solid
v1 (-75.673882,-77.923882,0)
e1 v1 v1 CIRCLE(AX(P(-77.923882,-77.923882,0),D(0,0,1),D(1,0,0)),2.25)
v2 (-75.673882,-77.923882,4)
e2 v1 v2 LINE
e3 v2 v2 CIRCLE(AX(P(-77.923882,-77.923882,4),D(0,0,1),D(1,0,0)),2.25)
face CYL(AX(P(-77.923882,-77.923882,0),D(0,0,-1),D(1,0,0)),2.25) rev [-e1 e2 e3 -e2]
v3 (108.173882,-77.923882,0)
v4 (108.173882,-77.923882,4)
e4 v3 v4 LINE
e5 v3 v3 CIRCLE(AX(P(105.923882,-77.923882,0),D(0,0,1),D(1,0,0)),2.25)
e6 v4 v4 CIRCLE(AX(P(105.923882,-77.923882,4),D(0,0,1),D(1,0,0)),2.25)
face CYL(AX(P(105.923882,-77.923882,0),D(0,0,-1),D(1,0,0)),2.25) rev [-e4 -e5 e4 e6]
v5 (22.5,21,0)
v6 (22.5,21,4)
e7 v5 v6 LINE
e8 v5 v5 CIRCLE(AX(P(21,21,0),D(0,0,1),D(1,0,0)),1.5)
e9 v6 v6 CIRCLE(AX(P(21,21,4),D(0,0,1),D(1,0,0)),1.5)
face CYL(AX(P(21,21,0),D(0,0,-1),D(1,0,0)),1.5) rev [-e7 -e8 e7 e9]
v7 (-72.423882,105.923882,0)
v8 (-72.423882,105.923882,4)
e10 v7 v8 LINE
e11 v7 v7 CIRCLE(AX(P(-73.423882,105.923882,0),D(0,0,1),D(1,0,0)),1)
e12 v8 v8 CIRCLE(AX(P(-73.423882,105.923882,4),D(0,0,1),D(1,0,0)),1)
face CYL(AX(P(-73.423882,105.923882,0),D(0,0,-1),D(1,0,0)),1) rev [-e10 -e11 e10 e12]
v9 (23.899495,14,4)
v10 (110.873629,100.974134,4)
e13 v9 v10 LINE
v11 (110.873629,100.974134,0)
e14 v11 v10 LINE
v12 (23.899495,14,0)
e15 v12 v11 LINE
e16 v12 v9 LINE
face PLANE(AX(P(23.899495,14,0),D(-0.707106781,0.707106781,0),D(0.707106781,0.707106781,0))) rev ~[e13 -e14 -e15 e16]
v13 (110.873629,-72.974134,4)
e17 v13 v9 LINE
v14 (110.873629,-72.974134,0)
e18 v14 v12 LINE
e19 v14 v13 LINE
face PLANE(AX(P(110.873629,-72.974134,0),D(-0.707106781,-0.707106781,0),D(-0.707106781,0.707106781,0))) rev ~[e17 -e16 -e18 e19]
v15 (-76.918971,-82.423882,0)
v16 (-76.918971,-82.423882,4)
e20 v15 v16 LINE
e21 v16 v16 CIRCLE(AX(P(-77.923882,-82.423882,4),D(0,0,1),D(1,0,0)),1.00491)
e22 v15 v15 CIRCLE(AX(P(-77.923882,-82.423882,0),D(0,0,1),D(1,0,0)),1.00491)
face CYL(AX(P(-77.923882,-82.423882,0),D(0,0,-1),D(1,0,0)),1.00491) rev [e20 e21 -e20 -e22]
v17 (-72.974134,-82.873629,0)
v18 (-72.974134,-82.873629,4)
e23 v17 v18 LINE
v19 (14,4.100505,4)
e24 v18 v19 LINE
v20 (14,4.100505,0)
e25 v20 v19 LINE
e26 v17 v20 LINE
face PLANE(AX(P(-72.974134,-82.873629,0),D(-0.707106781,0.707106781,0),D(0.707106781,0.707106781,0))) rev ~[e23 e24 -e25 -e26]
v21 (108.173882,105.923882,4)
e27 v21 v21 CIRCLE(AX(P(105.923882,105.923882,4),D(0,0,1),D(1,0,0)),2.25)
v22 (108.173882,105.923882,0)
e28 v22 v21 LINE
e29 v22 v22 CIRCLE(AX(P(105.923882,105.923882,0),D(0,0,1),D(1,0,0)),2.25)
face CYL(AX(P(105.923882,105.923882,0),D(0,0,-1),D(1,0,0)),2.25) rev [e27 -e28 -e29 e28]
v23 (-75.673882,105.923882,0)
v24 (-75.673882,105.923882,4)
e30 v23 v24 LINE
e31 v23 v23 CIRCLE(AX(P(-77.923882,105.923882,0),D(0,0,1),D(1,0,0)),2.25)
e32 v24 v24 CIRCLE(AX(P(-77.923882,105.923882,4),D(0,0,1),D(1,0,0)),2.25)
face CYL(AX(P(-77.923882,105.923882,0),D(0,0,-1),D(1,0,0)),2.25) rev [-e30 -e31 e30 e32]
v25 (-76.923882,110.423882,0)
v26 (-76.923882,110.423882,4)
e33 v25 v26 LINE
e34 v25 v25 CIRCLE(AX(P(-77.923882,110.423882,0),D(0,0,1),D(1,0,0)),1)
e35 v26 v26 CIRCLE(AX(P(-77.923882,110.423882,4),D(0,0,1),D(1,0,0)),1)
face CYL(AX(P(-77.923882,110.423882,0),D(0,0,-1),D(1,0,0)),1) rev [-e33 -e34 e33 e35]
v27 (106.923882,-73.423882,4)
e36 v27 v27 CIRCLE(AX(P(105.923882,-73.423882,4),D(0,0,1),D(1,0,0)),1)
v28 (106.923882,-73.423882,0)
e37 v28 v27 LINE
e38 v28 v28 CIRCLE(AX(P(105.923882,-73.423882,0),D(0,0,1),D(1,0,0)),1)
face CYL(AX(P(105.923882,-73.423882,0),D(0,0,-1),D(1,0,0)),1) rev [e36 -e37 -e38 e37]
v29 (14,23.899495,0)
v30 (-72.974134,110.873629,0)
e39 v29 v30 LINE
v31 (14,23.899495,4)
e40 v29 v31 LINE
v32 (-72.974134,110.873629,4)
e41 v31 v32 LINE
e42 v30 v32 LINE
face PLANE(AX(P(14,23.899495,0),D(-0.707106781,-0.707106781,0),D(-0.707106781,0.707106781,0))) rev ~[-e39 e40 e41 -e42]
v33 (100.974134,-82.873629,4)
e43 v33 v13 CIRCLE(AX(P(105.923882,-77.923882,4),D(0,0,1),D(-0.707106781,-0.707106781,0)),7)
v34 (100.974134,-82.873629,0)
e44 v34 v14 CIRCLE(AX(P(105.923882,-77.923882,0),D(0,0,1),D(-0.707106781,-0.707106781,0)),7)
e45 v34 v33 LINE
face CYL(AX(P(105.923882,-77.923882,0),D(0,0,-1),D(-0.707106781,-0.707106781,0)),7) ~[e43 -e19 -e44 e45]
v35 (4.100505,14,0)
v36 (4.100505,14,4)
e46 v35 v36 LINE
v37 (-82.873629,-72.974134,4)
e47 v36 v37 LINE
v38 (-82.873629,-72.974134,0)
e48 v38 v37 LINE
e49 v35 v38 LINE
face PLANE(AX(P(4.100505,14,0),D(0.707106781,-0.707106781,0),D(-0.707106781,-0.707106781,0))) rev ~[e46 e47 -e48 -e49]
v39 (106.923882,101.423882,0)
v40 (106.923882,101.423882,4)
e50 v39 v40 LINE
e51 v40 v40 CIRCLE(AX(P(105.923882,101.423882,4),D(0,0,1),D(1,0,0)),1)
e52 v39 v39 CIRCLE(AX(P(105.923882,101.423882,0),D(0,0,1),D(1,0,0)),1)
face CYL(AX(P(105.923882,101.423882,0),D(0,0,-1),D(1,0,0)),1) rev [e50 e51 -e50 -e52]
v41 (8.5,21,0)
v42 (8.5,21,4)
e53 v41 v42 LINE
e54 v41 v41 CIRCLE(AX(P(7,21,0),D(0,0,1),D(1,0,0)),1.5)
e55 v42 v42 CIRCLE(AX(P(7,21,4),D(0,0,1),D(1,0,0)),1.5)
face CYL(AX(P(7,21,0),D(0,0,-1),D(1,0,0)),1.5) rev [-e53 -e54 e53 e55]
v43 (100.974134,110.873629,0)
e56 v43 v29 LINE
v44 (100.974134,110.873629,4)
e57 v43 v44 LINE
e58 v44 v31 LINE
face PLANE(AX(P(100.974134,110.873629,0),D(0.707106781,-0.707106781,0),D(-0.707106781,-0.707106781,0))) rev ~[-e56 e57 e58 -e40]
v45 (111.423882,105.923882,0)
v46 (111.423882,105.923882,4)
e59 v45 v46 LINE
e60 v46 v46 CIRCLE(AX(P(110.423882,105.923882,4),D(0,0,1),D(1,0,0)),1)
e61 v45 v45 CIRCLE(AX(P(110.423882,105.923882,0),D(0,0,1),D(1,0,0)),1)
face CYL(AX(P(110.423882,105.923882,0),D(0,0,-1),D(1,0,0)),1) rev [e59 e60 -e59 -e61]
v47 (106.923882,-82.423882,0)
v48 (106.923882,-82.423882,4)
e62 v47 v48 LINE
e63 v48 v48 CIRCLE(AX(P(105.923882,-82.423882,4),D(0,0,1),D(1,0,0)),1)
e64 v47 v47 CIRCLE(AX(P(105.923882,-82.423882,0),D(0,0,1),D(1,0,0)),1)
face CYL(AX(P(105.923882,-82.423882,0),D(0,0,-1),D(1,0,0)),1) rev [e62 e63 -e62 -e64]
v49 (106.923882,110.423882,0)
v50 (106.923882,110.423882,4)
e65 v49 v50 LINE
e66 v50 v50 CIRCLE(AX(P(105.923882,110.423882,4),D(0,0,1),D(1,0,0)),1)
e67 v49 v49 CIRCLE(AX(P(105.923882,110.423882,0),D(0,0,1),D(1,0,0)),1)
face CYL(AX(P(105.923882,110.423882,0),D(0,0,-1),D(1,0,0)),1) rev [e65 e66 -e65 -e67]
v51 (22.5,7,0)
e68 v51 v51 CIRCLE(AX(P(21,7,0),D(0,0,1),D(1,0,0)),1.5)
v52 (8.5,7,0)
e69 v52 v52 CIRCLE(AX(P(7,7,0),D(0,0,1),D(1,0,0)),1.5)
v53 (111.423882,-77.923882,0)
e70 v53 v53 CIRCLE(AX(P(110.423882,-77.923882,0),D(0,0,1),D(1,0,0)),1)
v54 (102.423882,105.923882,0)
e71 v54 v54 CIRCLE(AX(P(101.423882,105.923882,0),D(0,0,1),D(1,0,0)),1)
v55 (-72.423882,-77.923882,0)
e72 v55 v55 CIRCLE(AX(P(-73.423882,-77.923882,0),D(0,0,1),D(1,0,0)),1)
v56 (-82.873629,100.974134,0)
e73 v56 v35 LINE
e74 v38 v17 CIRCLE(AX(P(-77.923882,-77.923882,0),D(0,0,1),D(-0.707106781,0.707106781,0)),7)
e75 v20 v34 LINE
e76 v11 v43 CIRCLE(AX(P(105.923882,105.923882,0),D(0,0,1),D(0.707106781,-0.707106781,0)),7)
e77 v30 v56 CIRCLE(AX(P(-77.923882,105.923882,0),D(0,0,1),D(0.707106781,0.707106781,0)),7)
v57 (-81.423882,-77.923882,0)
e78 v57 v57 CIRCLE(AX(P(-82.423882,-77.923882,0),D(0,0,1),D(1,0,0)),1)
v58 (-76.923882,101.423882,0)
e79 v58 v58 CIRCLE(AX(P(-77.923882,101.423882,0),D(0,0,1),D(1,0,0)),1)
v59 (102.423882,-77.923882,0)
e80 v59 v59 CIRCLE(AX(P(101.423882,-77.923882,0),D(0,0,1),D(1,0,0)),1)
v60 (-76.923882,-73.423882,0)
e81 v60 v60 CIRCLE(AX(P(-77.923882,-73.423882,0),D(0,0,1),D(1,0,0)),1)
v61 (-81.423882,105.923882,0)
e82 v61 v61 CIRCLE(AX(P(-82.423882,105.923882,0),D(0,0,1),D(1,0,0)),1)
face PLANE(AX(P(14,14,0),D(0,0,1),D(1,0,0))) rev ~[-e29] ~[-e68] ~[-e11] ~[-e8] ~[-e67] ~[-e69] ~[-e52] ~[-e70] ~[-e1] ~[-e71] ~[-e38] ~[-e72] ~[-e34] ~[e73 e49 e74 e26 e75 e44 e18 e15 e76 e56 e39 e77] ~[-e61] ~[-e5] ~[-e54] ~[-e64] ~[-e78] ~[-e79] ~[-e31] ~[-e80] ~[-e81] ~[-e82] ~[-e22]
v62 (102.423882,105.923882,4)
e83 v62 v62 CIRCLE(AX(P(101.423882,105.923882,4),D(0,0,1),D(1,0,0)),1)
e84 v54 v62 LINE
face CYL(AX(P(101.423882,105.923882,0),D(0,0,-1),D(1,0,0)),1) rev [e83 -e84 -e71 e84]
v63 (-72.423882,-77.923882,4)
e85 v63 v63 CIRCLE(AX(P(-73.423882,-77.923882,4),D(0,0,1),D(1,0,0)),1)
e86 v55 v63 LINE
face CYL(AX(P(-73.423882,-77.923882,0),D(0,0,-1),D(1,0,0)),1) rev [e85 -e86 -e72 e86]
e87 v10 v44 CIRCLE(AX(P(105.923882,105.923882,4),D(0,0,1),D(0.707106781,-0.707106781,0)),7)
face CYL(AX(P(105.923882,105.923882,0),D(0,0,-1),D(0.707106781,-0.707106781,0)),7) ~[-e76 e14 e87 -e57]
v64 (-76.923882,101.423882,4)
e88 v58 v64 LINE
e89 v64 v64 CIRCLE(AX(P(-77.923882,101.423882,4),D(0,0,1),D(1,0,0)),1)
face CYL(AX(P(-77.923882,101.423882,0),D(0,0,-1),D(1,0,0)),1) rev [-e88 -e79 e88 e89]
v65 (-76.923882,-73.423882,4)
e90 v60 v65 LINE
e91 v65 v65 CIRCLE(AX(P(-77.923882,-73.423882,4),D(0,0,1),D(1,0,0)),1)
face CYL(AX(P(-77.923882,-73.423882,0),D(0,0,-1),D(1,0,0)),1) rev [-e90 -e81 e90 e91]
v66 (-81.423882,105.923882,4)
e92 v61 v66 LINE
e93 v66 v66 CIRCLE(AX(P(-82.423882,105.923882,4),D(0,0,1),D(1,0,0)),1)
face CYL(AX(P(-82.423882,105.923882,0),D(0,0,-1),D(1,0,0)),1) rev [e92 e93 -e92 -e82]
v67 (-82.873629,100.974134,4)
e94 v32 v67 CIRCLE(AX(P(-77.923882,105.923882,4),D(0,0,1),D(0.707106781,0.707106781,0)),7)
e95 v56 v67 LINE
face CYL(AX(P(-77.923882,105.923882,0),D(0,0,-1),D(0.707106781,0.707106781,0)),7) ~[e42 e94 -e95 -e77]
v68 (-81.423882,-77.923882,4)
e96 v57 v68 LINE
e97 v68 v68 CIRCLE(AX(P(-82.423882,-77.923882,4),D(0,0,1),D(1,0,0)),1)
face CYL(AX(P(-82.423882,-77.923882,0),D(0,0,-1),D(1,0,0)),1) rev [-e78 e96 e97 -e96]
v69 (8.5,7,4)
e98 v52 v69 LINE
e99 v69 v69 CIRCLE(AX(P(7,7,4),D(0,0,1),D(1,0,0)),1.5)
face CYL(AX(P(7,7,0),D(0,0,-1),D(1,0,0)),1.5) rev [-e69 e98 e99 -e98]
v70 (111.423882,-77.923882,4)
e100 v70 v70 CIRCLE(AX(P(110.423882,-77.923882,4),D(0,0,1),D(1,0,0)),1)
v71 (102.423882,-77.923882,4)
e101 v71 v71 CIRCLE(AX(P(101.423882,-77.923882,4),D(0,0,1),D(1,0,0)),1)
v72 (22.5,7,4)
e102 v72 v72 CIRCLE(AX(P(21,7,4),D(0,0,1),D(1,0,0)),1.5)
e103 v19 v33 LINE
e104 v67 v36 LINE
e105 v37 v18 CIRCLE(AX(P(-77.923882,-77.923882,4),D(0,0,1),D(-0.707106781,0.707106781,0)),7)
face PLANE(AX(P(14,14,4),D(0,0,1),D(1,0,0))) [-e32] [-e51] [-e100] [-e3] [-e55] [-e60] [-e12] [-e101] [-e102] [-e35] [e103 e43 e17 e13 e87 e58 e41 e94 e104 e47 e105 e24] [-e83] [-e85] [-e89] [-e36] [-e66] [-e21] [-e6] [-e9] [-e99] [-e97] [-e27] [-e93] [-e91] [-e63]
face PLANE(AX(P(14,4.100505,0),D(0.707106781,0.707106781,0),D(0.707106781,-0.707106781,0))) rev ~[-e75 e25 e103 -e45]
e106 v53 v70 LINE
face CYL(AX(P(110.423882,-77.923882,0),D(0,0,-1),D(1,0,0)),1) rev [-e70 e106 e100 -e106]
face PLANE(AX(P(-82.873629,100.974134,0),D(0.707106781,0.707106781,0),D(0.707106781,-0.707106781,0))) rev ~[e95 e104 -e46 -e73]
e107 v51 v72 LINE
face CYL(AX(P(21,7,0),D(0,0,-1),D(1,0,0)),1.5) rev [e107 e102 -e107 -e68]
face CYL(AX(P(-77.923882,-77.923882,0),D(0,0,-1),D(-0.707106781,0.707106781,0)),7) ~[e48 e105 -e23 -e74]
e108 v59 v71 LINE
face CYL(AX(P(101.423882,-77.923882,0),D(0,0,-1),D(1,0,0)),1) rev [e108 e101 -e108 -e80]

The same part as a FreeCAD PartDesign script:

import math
import FreeCAD as App
import Part
import Sketcher
Q = App.Units.Quantity

doc = App.newDocument("Part")
body = doc.addObject("PartDesign::Body", "Body")

# Sketch on XY plane
sketch1 = doc.addObject("Sketcher::SketchObject", "Sketch")
body.addObject(sketch1)
sketch1.AttachmentSupport = (doc.XY_Plane, [""])
sketch1.MapMode = "FlatFace"
sketch1.addGeometry(Part.LineSegment(App.Vector(-73, -82.9, 0), App.Vector(14, 4.1, 0)), False)
sketch1.addGeometry(Part.LineSegment(App.Vector(14, 4.1, 0), App.Vector(101, -82.9, 0)), False)
sketch1.addGeometry(Part.ArcOfCircle(Part.Circle(App.Vector(105.9, -77.9, 0), App.Vector(0, 0, 1), 7), math.radians(-135), math.radians(45)), False)
sketch1.addGeometry(Part.LineSegment(App.Vector(110.9, -73, 0), App.Vector(23.9, 14, 0)), False)
sketch1.addGeometry(Part.LineSegment(App.Vector(23.9, 14, 0), App.Vector(110.9, 101, 0)), False)
sketch1.addGeometry(Part.ArcOfCircle(Part.Circle(App.Vector(105.9, 105.9, 0), App.Vector(0, 0, 1), 7), math.radians(-45), math.radians(135)), False)
sketch1.addGeometry(Part.LineSegment(App.Vector(101, 110.9, 0), App.Vector(14, 23.9, 0)), False)
sketch1.addGeometry(Part.LineSegment(App.Vector(14, 23.9, 0), App.Vector(-73, 110.9, 0)), False)
sketch1.addGeometry(Part.ArcOfCircle(Part.Circle(App.Vector(-77.9, 105.9, 0), App.Vector(0, 0, 1), 7), math.radians(45), math.radians(225)), False)
sketch1.addGeometry(Part.LineSegment(App.Vector(-82.9, 101, 0), App.Vector(4.1, 14, 0)), False)
sketch1.addGeometry(Part.LineSegment(App.Vector(4.1, 14, 0), App.Vector(-82.9, -73, 0)), False)
sketch1.addGeometry(Part.ArcOfCircle(Part.Circle(App.Vector(-77.9, -77.9, 0), App.Vector(0, 0, 1), 7), math.radians(135), math.radians(315)), False)
sketch1.addGeometry(Part.Circle(App.Vector(-77.9, -82.4, 0), App.Vector(0, 0, 1), 1), False)
sketch1.addGeometry(Part.Circle(App.Vector(-82.4, -77.9, 0), App.Vector(0, 0, 1), 1), False)
sketch1.addGeometry(Part.Circle(App.Vector(-77.9, -77.9, 0), App.Vector(0, 0, 1), 2.2), False)
sketch1.addGeometry(Part.Circle(App.Vector(-73.4, -77.9, 0), App.Vector(0, 0, 1), 1), False)
sketch1.addGeometry(Part.Circle(App.Vector(-77.9, -73.4, 0), App.Vector(0, 0, 1), 1), False)
sketch1.addGeometry(Part.Circle(App.Vector(7, 7, 0), App.Vector(0, 0, 1), 1.5), False)
sketch1.addGeometry(Part.Circle(App.Vector(101.4, -77.9, 0), App.Vector(0, 0, 1), 1), False)
sketch1.addGeometry(Part.Circle(App.Vector(105.9, -82.4, 0), App.Vector(0, 0, 1), 1), False)
sketch1.addGeometry(Part.Circle(App.Vector(105.9, -77.9, 0), App.Vector(0, 0, 1), 2.2), False)
sketch1.addGeometry(Part.Circle(App.Vector(110.4, -77.9, 0), App.Vector(0, 0, 1), 1), False)
sketch1.addGeometry(Part.Circle(App.Vector(105.9, -73.4, 0), App.Vector(0, 0, 1), 1), False)
sketch1.addGeometry(Part.Circle(App.Vector(21, 7, 0), App.Vector(0, 0, 1), 1.5), False)
sketch1.addGeometry(Part.Circle(App.Vector(7, 21, 0), App.Vector(0, 0, 1), 1.5), False)
sketch1.addGeometry(Part.Circle(App.Vector(-77.9, 101.4, 0), App.Vector(0, 0, 1), 1), False)
sketch1.addGeometry(Part.Circle(App.Vector(-82.4, 105.9, 0), App.Vector(0, 0, 1), 1), False)
sketch1.addGeometry(Part.Circle(App.Vector(-77.9, 105.9, 0), App.Vector(0, 0, 1), 2.2), False)
sketch1.addGeometry(Part.Circle(App.Vector(-77.9, 110.4, 0), App.Vector(0, 0, 1), 1), False)
sketch1.addGeometry(Part.Circle(App.Vector(-73.4, 105.9, 0), App.Vector(0, 0, 1), 1), False)
sketch1.addGeometry(Part.Circle(App.Vector(21, 21, 0), App.Vector(0, 0, 1), 1.5), False)
sketch1.addGeometry(Part.Circle(App.Vector(105.9, 101.4, 0), App.Vector(0, 0, 1), 1), False)
sketch1.addGeometry(Part.Circle(App.Vector(101.4, 105.9, 0), App.Vector(0, 0, 1), 1), False)
sketch1.addGeometry(Part.Circle(App.Vector(105.9, 105.9, 0), App.Vector(0, 0, 1), 2.2), False)
sketch1.addGeometry(Part.Circle(App.Vector(110.4, 105.9, 0), App.Vector(0, 0, 1), 1), False)
sketch1.addGeometry(Part.Circle(App.Vector(105.9, 110.4, 0), App.Vector(0, 0, 1), 1), False)
sketch1.addConstraint(Sketcher.Constraint("Coincident", 0, 2, 1, 1))
sketch1.addConstraint(Sketcher.Constraint("Tangent", 1, 2, 2, 1))
sketch1.addConstraint(Sketcher.Constraint("Tangent", 2, 2, 3, 1))
sketch1.addConstraint(Sketcher.Constraint("Coincident", 3, 2, 4, 1))
sketch1.addConstraint(Sketcher.Constraint("Tangent", 4, 2, 5, 1))
sketch1.addConstraint(Sketcher.Constraint("Tangent", 5, 2, 6, 1))
sketch1.addConstraint(Sketcher.Constraint("Coincident", 6, 2, 7, 1))
sketch1.addConstraint(Sketcher.Constraint("Tangent", 7, 2, 8, 1))
sketch1.addConstraint(Sketcher.Constraint("Tangent", 8, 2, 9, 1))
sketch1.addConstraint(Sketcher.Constraint("Coincident", 9, 2, 10, 1))
sketch1.addConstraint(Sketcher.Constraint("Tangent", 10, 2, 11, 1))
sketch1.addConstraint(Sketcher.Constraint("Tangent", 11, 2, 0, 1))
sketch1.addConstraint(Sketcher.Constraint("Coincident", 14, 3, 11, 3))
sketch1.addConstraint(Sketcher.Constraint("Coincident", 20, 3, 2, 3))
sketch1.addConstraint(Sketcher.Constraint("Coincident", 27, 3, 8, 3))
sketch1.addConstraint(Sketcher.Constraint("Coincident", 33, 3, 5, 3))
sketch1.addConstraint(Sketcher.Constraint("Equal", 2, 5))
sketch1.addConstraint(Sketcher.Constraint("Equal", 5, 8))
sketch1.addConstraint(Sketcher.Constraint("Equal", 8, 11))
sketch1.addConstraint(Sketcher.Constraint("Equal", 13, 15))
sketch1.addConstraint(Sketcher.Constraint("Equal", 15, 16))
sketch1.addConstraint(Sketcher.Constraint("Equal", 16, 18))
sketch1.addConstraint(Sketcher.Constraint("Equal", 18, 19))
sketch1.addConstraint(Sketcher.Constraint("Equal", 14, 20))
sketch1.addConstraint(Sketcher.Constraint("Equal", 19, 21))
sketch1.addConstraint(Sketcher.Constraint("Equal", 21, 22))
sketch1.addConstraint(Sketcher.Constraint("Equal", 17, 23))
sketch1.addConstraint(Sketcher.Constraint("Equal", 23, 24))
sketch1.addConstraint(Sketcher.Constraint("Equal", 22, 25))
sketch1.addConstraint(Sketcher.Constraint("Equal", 25, 26))
sketch1.addConstraint(Sketcher.Constraint("Equal", 20, 27))
sketch1.addConstraint(Sketcher.Constraint("Equal", 26, 28))
sketch1.addConstraint(Sketcher.Constraint("Equal", 28, 29))
sketch1.addConstraint(Sketcher.Constraint("Equal", 24, 30))
sketch1.addConstraint(Sketcher.Constraint("Equal", 29, 31))
sketch1.addConstraint(Sketcher.Constraint("Equal", 31, 32))
sketch1.addConstraint(Sketcher.Constraint("Equal", 27, 33))
sketch1.addConstraint(Sketcher.Constraint("Equal", 32, 34))
sketch1.addConstraint(Sketcher.Constraint("Equal", 34, 35))
sketch1.addConstraint(Sketcher.Constraint("Perpendicular", 0, 1))
sketch1.addConstraint(Sketcher.Constraint("Parallel", 1, 3))
sketch1.addConstraint(Sketcher.Constraint("Perpendicular", 3, 4))
sketch1.addConstraint(Sketcher.Constraint("Parallel", 4, 6))
sketch1.addConstraint(Sketcher.Constraint("Perpendicular", 6, 7))
sketch1.addConstraint(Sketcher.Constraint("Parallel", 7, 9))
sketch1.addConstraint(Sketcher.Constraint("Perpendicular", 9, 10))
sketch1.addConstraint(Sketcher.Constraint("Horizontal", 5, 3, 8, 3))
sketch1.addConstraint(Sketcher.Constraint("Horizontal", 2, 3, 11, 3))
sketch1.addConstraint(Sketcher.Constraint("Horizontal", 11, 3, 13, 3))
sketch1.addConstraint(Sketcher.Constraint("Horizontal", 14, 3, 15, 3))
sketch1.addConstraint(Sketcher.Constraint("Horizontal", 15, 3, 18, 3))
sketch1.addConstraint(Sketcher.Constraint("Horizontal", 12, 3, 19, 3))
sketch1.addConstraint(Sketcher.Constraint("Horizontal", 20, 3, 21, 3))
sketch1.addConstraint(Sketcher.Constraint("Horizontal", 16, 3, 22, 3))
sketch1.addConstraint(Sketcher.Constraint("Horizontal", 17, 3, 23, 3))
sketch1.addConstraint(Sketcher.Constraint("Horizontal", 8, 3, 26, 3))
sketch1.addConstraint(Sketcher.Constraint("Horizontal", 27, 3, 29, 3))
sketch1.addConstraint(Sketcher.Constraint("Horizontal", 24, 3, 30, 3))
sketch1.addConstraint(Sketcher.Constraint("Horizontal", 25, 3, 31, 3))
sketch1.addConstraint(Sketcher.Constraint("Horizontal", 29, 3, 32, 3))
sketch1.addConstraint(Sketcher.Constraint("Horizontal", 33, 3, 34, 3))
sketch1.addConstraint(Sketcher.Constraint("Horizontal", 28, 3, 35, 3))
sketch1.addConstraint(Sketcher.Constraint("Horizontal", 5, 2, 7, 2))
sketch1.addConstraint(Sketcher.Constraint("Horizontal", 3, 2, 9, 2))
sketch1.addConstraint(Sketcher.Constraint("Vertical", 2, 3, 5, 3))
sketch1.addConstraint(Sketcher.Constraint("Vertical", 11, 3, 12, 3))
sketch1.addConstraint(Sketcher.Constraint("Vertical", 14, 3, 16, 3))
sketch1.addConstraint(Sketcher.Constraint("Vertical", 5, 3, 19, 3))
sketch1.addConstraint(Sketcher.Constraint("Vertical", 20, 3, 22, 3))
sketch1.addConstraint(Sketcher.Constraint("Vertical", 17, 3, 24, 3))
sketch1.addConstraint(Sketcher.Constraint("Vertical", 16, 3, 25, 3))
sketch1.addConstraint(Sketcher.Constraint("Vertical", 13, 3, 26, 3))
sketch1.addConstraint(Sketcher.Constraint("Vertical", 27, 3, 28, 3))
sketch1.addConstraint(Sketcher.Constraint("Vertical", 15, 3, 29, 3))
sketch1.addConstraint(Sketcher.Constraint("Vertical", 23, 3, 30, 3))
sketch1.addConstraint(Sketcher.Constraint("Vertical", 22, 3, 31, 3))
sketch1.addConstraint(Sketcher.Constraint("Vertical", 18, 3, 32, 3))
sketch1.addConstraint(Sketcher.Constraint("Vertical", 21, 3, 34, 3))
sketch1.addConstraint(Sketcher.Constraint("Vertical", 33, 3, 35, 3))
sketch1.addConstraint(Sketcher.Constraint("Equal", 1, 3))
sketch1.addConstraint(Sketcher.Constraint("Diameter", 13, Q("2 mm")))
sketch1.addConstraint(Sketcher.Constraint("Diameter", 17, Q("3 mm")))
sketch1.addConstraint(Sketcher.Constraint("Radius", 2, Q("7 mm")))
sketch1.addConstraint(Sketcher.Constraint("Diameter", 14, Q("4.5 mm")))
sketch1.addConstraint(Sketcher.Constraint("Distance", 0, Q("123 mm")))
sketch1.addConstraint(Sketcher.Constraint("DistanceX", -1, 1, 17, 3, Q("7 mm")))
sketch1.addConstraint(Sketcher.Constraint("DistanceY", -1, 1, 17, 3, Q("7 mm")))
sketch1.addConstraint(Sketcher.Constraint("DistanceX", -1, 1, 23, 3, Q("21 mm")))
sketch1.addConstraint(Sketcher.Constraint("DistanceY", -1, 1, 24, 3, Q("21 mm")))
sketch1.addConstraint(Sketcher.Constraint("DistanceX", -1, 1, 0, 2, Q("14 mm")))
sketch1.addConstraint(Sketcher.Constraint("DistanceY", -1, 1, 3, 2, Q("14 mm")))
sketch1.addConstraint(Sketcher.Constraint("DistanceX", 13, 3, 15, 3, Q("9 mm")))
sketch1.addConstraint(Sketcher.Constraint("DistanceY", 12, 3, 16, 3, Q("9 mm")))
sketch1.addConstraint(Sketcher.Constraint("DistanceX", 18, 3, 21, 3, Q("9 mm")))
sketch1.addConstraint(Sketcher.Constraint("DistanceY", 25, 3, 28, 3, Q("9 mm")))
sketch1.addConstraint(Sketcher.Constraint("DistanceY", 12, 3, 11, 3, Q("4.5 mm")))
sketch1.addConstraint(Sketcher.Constraint("DistanceX", 13, 3, 11, 3, Q("4.5 mm")))
sketch1.addConstraint(Sketcher.Constraint("DistanceX", 18, 3, 2, 3, Q("4.5 mm")))
sketch1.addConstraint(Sketcher.Constraint("DistanceY", 25, 3, 8, 3, Q("4.5 mm")))
sketch1.addConstraint(Sketcher.Constraint("Diameter", 12, Q("2.009821 mm")))
pad1 = doc.addObject("PartDesign::Pad", "Pad")
body.addObject(pad1)
pad1.Profile = sketch1
pad1.Length = 4

doc.recompute()
